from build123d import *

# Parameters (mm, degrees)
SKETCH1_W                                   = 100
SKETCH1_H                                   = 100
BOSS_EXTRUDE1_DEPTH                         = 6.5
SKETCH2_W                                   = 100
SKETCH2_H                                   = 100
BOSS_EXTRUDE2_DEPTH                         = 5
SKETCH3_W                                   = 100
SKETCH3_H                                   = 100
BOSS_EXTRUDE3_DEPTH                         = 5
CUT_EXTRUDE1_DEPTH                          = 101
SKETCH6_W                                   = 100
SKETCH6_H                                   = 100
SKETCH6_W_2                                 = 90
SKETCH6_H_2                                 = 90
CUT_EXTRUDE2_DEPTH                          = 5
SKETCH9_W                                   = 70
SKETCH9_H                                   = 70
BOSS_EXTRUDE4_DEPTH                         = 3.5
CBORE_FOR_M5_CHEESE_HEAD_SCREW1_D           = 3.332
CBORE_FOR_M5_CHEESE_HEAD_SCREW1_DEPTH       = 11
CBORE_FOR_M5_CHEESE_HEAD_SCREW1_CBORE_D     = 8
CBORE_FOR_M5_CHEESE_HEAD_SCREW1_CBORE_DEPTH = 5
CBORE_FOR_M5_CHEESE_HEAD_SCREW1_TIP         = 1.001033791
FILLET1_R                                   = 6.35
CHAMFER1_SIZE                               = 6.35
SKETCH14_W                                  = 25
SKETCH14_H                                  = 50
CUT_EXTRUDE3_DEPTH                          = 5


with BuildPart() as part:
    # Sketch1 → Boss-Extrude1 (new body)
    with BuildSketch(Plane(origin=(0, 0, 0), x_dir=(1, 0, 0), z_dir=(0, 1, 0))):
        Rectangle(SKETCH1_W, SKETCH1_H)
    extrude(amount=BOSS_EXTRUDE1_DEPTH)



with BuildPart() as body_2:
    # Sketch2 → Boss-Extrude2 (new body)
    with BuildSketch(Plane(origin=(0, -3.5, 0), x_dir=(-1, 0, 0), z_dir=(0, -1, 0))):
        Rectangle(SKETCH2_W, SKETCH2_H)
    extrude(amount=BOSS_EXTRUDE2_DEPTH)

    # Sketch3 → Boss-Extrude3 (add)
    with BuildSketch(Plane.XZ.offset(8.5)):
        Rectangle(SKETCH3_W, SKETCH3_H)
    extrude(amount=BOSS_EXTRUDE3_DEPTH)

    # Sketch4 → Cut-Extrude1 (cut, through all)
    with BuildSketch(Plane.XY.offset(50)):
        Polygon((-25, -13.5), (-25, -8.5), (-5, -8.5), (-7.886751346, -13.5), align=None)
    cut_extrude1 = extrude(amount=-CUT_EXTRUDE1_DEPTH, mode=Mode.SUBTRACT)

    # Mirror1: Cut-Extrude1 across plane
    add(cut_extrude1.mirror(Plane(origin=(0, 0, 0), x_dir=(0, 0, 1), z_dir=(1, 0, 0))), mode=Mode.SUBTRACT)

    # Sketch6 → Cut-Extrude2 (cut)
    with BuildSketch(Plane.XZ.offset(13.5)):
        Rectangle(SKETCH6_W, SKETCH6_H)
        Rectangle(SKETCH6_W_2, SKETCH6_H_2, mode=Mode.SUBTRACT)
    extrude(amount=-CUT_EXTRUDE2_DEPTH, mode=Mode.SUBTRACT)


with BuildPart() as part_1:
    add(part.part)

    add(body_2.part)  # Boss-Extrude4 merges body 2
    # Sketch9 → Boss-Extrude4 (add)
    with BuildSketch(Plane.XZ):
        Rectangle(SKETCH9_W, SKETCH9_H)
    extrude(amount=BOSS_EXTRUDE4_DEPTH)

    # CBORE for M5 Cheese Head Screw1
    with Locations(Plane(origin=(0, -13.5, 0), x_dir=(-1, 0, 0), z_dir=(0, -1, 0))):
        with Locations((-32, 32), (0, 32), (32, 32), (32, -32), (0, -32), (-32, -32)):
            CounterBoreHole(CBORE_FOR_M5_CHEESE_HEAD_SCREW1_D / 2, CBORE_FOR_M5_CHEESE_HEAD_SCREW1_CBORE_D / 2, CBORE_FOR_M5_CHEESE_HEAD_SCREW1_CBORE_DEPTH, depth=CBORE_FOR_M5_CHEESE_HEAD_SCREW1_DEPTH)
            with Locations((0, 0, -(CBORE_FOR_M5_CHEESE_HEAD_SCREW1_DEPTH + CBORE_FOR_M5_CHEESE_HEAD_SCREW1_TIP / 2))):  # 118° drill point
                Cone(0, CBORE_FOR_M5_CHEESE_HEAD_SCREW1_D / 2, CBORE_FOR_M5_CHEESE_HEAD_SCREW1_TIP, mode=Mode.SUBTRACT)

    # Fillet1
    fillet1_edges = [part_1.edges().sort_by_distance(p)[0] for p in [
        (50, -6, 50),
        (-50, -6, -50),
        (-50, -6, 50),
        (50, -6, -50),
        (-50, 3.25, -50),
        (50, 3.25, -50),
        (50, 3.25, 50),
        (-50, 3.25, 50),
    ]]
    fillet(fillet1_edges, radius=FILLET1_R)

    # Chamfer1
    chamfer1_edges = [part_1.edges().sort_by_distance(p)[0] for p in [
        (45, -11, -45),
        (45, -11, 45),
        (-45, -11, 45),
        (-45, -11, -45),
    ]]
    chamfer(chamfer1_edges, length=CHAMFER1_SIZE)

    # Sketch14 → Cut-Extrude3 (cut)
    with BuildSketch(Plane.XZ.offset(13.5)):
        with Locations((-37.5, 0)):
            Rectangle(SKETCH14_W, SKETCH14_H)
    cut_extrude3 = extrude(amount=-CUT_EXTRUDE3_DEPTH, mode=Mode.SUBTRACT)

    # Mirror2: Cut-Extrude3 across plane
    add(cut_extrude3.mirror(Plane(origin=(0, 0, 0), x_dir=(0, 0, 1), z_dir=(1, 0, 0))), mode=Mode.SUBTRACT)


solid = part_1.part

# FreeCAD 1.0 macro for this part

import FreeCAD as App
import Part
import Sketcher
from FreeCAD import Vector
Q = App.Units.Quantity


def edges_at(feature, points):
    """Names of the edges that pass closest to the given points."""
    edges = feature.Shape.Edges
    near = lambda p: min(range(len(edges)), key=lambda i: edges[i].distToShape(Part.Vertex(*p))[0])
    return sorted({f"Edge{near(p) + 1}" for p in points})


def add_polygon(sketch, points):
    """Adds a closed chain of lines whose ends are joined by coincident constraints."""
    first, n = sketch.GeometryCount, len(points)
    for a, b in zip(points, points[1:] + points[:1]):
        sketch.addGeometry(Part.LineSegment(App.Vector(*a, 0), App.Vector(*b, 0)), False)
    for i in range(n):
        sketch.addConstraint(Sketcher.Constraint("Coincident", first + i, 2, first + (i + 1) % n, 1))

doc = App.newDocument("Part")
body = doc.addObject("PartDesign::Body", "Body")

# Sketch on XZ plane
sketch1 = body.newObject("Sketcher::SketchObject", "Sketch")
sketch1.AttachmentSupport = (doc.getObject("XZ_Plane"), [""])
sketch1.MapMode = "FlatFace"
add_polygon(sketch1, [(-50, -50), (-50, 50), (50, 50), (50, -50)])  # lines 0-3
sketch1.addConstraint([
    Sketcher.Constraint("Vertical", 0),
    Sketcher.Constraint("Horizontal", 1),
    Sketcher.Constraint("Vertical", 2),
    Sketcher.Constraint("Horizontal", 3),
    Sketcher.Constraint("Symmetric", 0, 2, 2, 2, -1, 1),
    Sketcher.Constraint("Equal", 3, 0),
    Sketcher.Constraint("DistanceX", 1, 1, 1, 2, 100.0),
])
pad1 = body.newObject("PartDesign::Pad", "Pad")
pad1.Profile = sketch1
pad1.Length = 6.5
pad1.Reversed = True
body2 = doc.addObject("PartDesign::Body", "Body001")

# Sketch on XZ plane
sketch2 = body2.newObject("Sketcher::SketchObject", "Sketch001")
sketch2.AttachmentSupport = (doc.getObject("XZ_Plane001"), [""])
sketch2.MapMode = "FlatFace"
sketch2.AttachmentOffset = App.Placement(Vector(0, 0, 3.5), App.Rotation())
add_polygon(sketch2, [(50, -50), (50, 50), (-50, 50), (-50, -50)])  # lines 0-3
sketch2.addConstraint([
    Sketcher.Constraint("Vertical", 0),
    Sketcher.Constraint("Horizontal", 1),
    Sketcher.Constraint("Vertical", 2),
    Sketcher.Constraint("Horizontal", 3),
    Sketcher.Constraint("Symmetric", 0, 2, 2, 2, -1, 1),
    Sketcher.Constraint("Equal", 3, 0),
    Sketcher.Constraint("DistanceX", 1, 2, 1, 1, 100.0),
])
pad2 = body2.newObject("PartDesign::Pad", "Pad001")
pad2.Profile = sketch2
pad2.Length = 5

# Sketch on XZ plane
sketch3 = body2.newObject("Sketcher::SketchObject", "Sketch002")
sketch3.AttachmentSupport = (doc.getObject("XZ_Plane001"), [""])
sketch3.MapMode = "FlatFace"
sketch3.AttachmentOffset = App.Placement(Vector(0, 0, 8.5), App.Rotation())
add_polygon(sketch3, [(-50, 50), (-50, -50), (50, -50), (50, 50)])  # lines 0-3
sketch3.addConstraint([
    Sketcher.Constraint("Vertical", 0),
    Sketcher.Constraint("Horizontal", 1),
    Sketcher.Constraint("Vertical", 2),
    Sketcher.Constraint("Horizontal", 3),
    Sketcher.Constraint("Symmetric", 0, 2, 2, 2, -1, 1),
    Sketcher.Constraint("Equal", 3, 0),
    Sketcher.Constraint("DistanceX", 1, 1, 1, 2, 100.0),
])
pad3 = body2.newObject("PartDesign::Pad", "Pad002")
pad3.Profile = sketch3
pad3.Length = 5

# Sketch on XY plane
sketch4 = body2.newObject("Sketcher::SketchObject", "Sketch003")
sketch4.AttachmentSupport = (doc.getObject("XY_Plane001"), [""])
sketch4.MapMode = "FlatFace"
sketch4.AttachmentOffset = App.Placement(Vector(0, 0, 50), App.Rotation())
add_polygon(sketch4, [(-25, -8.5), (-25, -13.5), (-7.886751, -13.5), (-5, -8.5)])  # lines 0-3
sketch4.addConstraint([
    Sketcher.Constraint("Vertical", 0),
    Sketcher.Constraint("Horizontal", 1),
    Sketcher.Constraint("Horizontal", 3),
    Sketcher.Constraint("DistanceX", 3, 2, 3, 1, 20.0),
    Sketcher.Constraint("DistanceY", 0, 2, 0, 1, 5.0),
    Sketcher.Constraint("Angle", 2, Q("60 deg")),
    Sketcher.Constraint("DistanceX", 0, 2, -1, 1, 25.0),
    Sketcher.Constraint("DistanceY", 0, 2, -1, 1, 13.5),
])
pocket1 = body2.newObject("PartDesign::Pocket", "Pocket")
pocket1.Profile = sketch4
pocket1.Type = "ThroughAll"
doc.recompute()

mirrored = body2.newObject("PartDesign::Mirrored", "Mirrored")
mirrored.Originals = [pocket1]
mirrored.MirrorPlane = (doc.getObject("YZ_Plane001"), [""])
body2.Tip = mirrored

# Sketch on XZ plane
sketch5 = body2.newObject("Sketcher::SketchObject", "Sketch004")
sketch5.AttachmentSupport = (doc.getObject("XZ_Plane001"), [""])
sketch5.MapMode = "FlatFace"
sketch5.AttachmentOffset = App.Placement(Vector(0, 0, 13.5), App.Rotation())
add_polygon(sketch5, [(-50, 50), (-50, -50), (50, -50), (50, 50)])  # lines 0-3
add_polygon(sketch5, [(45, -45), (-45, -45), (-45, 45), (45, 45)])  # lines 4-7
sketch5.addConstraint([
    Sketcher.Constraint("Vertical", 0),
    Sketcher.Constraint("Horizontal", 1),
    Sketcher.Constraint("Vertical", 2),
    Sketcher.Constraint("Horizontal", 3),
    Sketcher.Constraint("Horizontal", 4),
    Sketcher.Constraint("Vertical", 5),
    Sketcher.Constraint("Horizontal", 6),
    Sketcher.Constraint("Vertical", 7),
    Sketcher.Constraint("Symmetric", 0, 2, 2, 2, -1, 1),
    Sketcher.Constraint("Symmetric", 4, 2, 6, 2, -1, 1),
    Sketcher.Constraint("Equal", 3, 0),
    Sketcher.Constraint("Equal", 6, 5),
    Sketcher.Constraint("DistanceX", 1, 1, 1, 2, 100.0),
    Sketcher.Constraint("DistanceX", 4, 2, 4, 1, 90.0),
])
pocket2 = body2.newObject("PartDesign::Pocket", "Pocket001")
pocket2.Profile = sketch5
pocket2.Length = 5
body.AllowCompound = True
doc.recompute()

boolean = body.newObject("PartDesign::Boolean", "Boolean")
boolean.Type = "Fuse"
boolean.addObjects([body2])

# Sketch on XZ plane
sketch6 = body.newObject("Sketcher::SketchObject", "Sketch005")
sketch6.AttachmentSupport = (doc.getObject("XZ_Plane"), [""])
sketch6.MapMode = "FlatFace"
add_polygon(sketch6, [(-35, 35), (-35, -35), (35, -35), (35, 35)])  # lines 0-3
sketch6.addConstraint([
    Sketcher.Constraint("Vertical", 0),
    Sketcher.Constraint("Horizontal", 1),
    Sketcher.Constraint("Vertical", 2),
    Sketcher.Constraint("Horizontal", 3),
    Sketcher.Constraint("Symmetric", 0, 2, 2, 2, -1, 1),
    Sketcher.Constraint("Equal", 3, 0),
    Sketcher.Constraint("DistanceX", 1, 1, 1, 2, 70.0),
])
pad4 = body.newObject("PartDesign::Pad", "Pad003")
pad4.Profile = sketch6
pad4.Length = 3.5

# Sketch on XZ plane
sketch7 = body.newObject("Sketcher::SketchObject", "Sketch006")
sketch7.AttachmentSupport = (doc.getObject("XZ_Plane"), [""])
sketch7.MapMode = "FlatFace"
sketch7.AttachmentOffset = App.Placement(Vector(0, 0, 13.5), App.Rotation())
sketch7.addGeometry([
    Part.Circle(Vector(32, -32, 0), Vector(0, 0, 1), 1.666),  # 0
    Part.Circle(Vector(0, -32, 0), Vector(0, 0, 1), 1.666),  # 1
    Part.Circle(Vector(-32, -32, 0), Vector(0, 0, 1), 1.666),  # 2
    Part.Circle(Vector(-32, 32, 0), Vector(0, 0, 1), 1.666),  # 3
    Part.Circle(Vector(0, 32, 0), Vector(0, 0, 1), 1.666),  # 4
    Part.Circle(Vector(32, 32, 0), Vector(0, 0, 1), 1.666),  # 5
], False)
sketch7.addConstraint([
    Sketcher.Constraint("Equal", 0, 1),
    Sketcher.Constraint("Equal", 1, 2),
    Sketcher.Constraint("Equal", 2, 3),
    Sketcher.Constraint("Equal", 3, 4),
    Sketcher.Constraint("Equal", 4, 5),
    Sketcher.Constraint("Symmetric", 0, 3, 3, 3, -1, 1),
    Sketcher.Constraint("Symmetric", 1, 3, 4, 3, -1, 1),
    Sketcher.Constraint("Symmetric", 2, 3, 5, 3, -1, 1),
    Sketcher.Constraint("Symmetric", 0, 3, 2, 3, -2),
    Sketcher.Constraint("PointOnObject", 1, 3, -2),
    Sketcher.Constraint("Horizontal", 0, 3, 1, 3),
    Sketcher.Constraint("Diameter", 0, 3.332),
    Sketcher.Constraint("DistanceX", -1, 1, 0, 3, 32.0),
    Sketcher.Constraint("DistanceY", 0, 3, -1, 1, 32.0),
])
doc.recompute()
hole = body.newObject("PartDesign::Hole", "Hole")
hole.Profile = sketch7
hole.ThreadType = "None"
hole.Diameter = 3.332
hole.DepthType = "Dimension"
hole.Depth = 11
hole.DrillPoint = "Angled"
hole.DrillPointAngle = 118
hole.HoleCutType = "Counterbore"
hole.HoleCutDiameter = 8
hole.HoleCutDepth = 5
doc.recompute()

fillet = body.newObject("PartDesign::Fillet", "Fillet")
fillet.Base = (hole, edges_at(hole, [
    (50, -6, 50),
    (-50, -6, -50),
    (-50, -6, 50),
    (50, -6, -50),
    (-50, 3.25, -50),
    (50, 3.25, -50),
    (50, 3.25, 50),
    (-50, 3.25, 50),
]))
fillet.Radius = 6.35
doc.recompute()

chamfer = body.newObject("PartDesign::Chamfer", "Chamfer")
chamfer.Base = (fillet, edges_at(fillet, [
    (45, -11, -45),
    (45, -11, 45),
    (-45, -11, 45),
    (-45, -11, -45),
]))
chamfer.Size = 6.35

# Sketch on XZ plane
sketch8 = body.newObject("Sketcher::SketchObject", "Sketch007")
sketch8.AttachmentSupport = (doc.getObject("XZ_Plane"), [""])
sketch8.MapMode = "FlatFace"
sketch8.AttachmentOffset = App.Placement(Vector(0, 0, 13.5), App.Rotation())
add_polygon(sketch8, [(-50, 25), (-50, -25), (-25, -25), (-25, 25)])  # lines 0-3
sketch8.addConstraint([
    Sketcher.Constraint("Vertical", 0),
    Sketcher.Constraint("Horizontal", 1),
    Sketcher.Constraint("Vertical", 2),
    Sketcher.Constraint("Horizontal", 3),
    Sketcher.Constraint("DistanceX", 1, 1, 1, 2, 25.0),
    Sketcher.Constraint("DistanceY", 0, 2, 0, 1, 50.0),
    Sketcher.Constraint("DistanceX", 0, 2, -1, 1, 50.0),
    Sketcher.Constraint("DistanceY", 0, 2, -1, 1, 25.0),
])
pocket3 = body.newObject("PartDesign::Pocket", "Pocket002")
pocket3.Profile = sketch8
pocket3.Length = 5
doc.recompute()

mirrored2 = body.newObject("PartDesign::Mirrored", "Mirrored001")
mirrored2.Originals = [pocket3]
mirrored2.MirrorPlane = (doc.getObject("YZ_Plane"), [""])
body.Tip = mirrored2

doc.recompute()
